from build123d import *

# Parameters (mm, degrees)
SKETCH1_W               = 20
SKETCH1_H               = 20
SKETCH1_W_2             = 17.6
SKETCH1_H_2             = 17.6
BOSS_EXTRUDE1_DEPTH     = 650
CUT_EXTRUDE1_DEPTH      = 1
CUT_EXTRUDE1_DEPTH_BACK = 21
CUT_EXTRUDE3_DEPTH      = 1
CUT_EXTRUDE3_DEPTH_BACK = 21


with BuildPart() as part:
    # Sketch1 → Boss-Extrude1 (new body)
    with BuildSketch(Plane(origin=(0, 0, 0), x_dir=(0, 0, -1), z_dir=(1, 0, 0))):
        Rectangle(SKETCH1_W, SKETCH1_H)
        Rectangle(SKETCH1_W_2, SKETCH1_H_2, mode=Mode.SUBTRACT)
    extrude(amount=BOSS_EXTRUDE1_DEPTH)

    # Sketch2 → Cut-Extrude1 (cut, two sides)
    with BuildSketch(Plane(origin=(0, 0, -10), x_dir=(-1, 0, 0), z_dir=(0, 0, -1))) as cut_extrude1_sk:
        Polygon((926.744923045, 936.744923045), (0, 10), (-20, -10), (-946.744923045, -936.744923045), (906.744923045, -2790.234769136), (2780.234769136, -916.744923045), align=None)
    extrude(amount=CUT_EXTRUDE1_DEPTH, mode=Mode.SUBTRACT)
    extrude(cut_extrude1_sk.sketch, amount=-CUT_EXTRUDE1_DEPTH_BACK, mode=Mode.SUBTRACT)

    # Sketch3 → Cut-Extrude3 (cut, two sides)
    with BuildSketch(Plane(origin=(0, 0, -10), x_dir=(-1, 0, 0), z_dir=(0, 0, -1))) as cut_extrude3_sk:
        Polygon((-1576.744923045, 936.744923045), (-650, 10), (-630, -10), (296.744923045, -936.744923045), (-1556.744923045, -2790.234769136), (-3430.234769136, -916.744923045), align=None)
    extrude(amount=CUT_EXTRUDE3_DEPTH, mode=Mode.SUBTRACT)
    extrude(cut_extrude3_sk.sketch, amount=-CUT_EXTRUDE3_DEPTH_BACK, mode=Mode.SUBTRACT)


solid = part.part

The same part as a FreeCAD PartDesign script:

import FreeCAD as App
import Part
import Sketcher

V = App.Vector
Q = App.Units.Quantity


def add_polygon(sketch, points):
    """Adds a closed chain of lines whose ends are joined by coincident constraints."""
    first, n = sketch.GeometryCount, len(points)
    for a, b in zip(points, points[1:] + points[:1]):
        sketch.addGeometry(Part.LineSegment(App.Vector(*a, 0), App.Vector(*b, 0)), False)
    for i in range(n):
        sketch.addConstraint(Sketcher.Constraint("Coincident", first + i, 2, first + (i + 1) % n, 1))

doc = App.newDocument("Part")
body = doc.addObject("PartDesign::Body", "Body")

# Sketch on YZ plane
sketch1 = body.newObject("Sketcher::SketchObject", "Sketch")
sketch1.AttachmentSupport = (doc.getObject("YZ_Plane"), [""])
sketch1.MapMode = "FlatFace"
add_polygon(sketch1, [(10, 10), (-10, 10), (-10, -10), (10, -10)])  # lines 0-3
add_polygon(sketch1, [(-9, -9), (-9, 9), (9, 9), (9, -9)])  # lines 4-7
sketch1.addConstraint(Sketcher.Constraint("Horizontal", 0))
sketch1.addConstraint(Sketcher.Constraint("Vertical", 1))
sketch1.addConstraint(Sketcher.Constraint("Horizontal", 2))
sketch1.addConstraint(Sketcher.Constraint("Vertical", 3))
sketch1.addConstraint(Sketcher.Constraint("Vertical", 4))
sketch1.addConstraint(Sketcher.Constraint("Horizontal", 5))
sketch1.addConstraint(Sketcher.Constraint("Vertical", 6))
sketch1.addConstraint(Sketcher.Constraint("Horizontal", 7))
sketch1.addConstraint(Sketcher.Constraint("Symmetric", 0, 2, 2, 2, -1, 1))
sketch1.addConstraint(Sketcher.Constraint("Symmetric", 4, 2, 6, 2, -1, 1))
sketch1.addConstraint(Sketcher.Constraint("Equal", 2, 1))
sketch1.addConstraint(Sketcher.Constraint("Equal", 7, 4))
sketch1.addConstraint(Sketcher.Constraint("DistanceX", 0, 2, 0, 1, 20.0))
sketch1.addConstraint(Sketcher.Constraint("DistanceX", 5, 1, 5, 2, 17.6))
pad1 = body.newObject("PartDesign::Pad", "Pad")
pad1.Profile = sketch1
pad1.Length = 650

# Sketch on XY plane
sketch2 = body.newObject("Sketcher::SketchObject", "Sketch001")
sketch2.AttachmentSupport = (doc.getObject("XY_Plane"), [""])
sketch2.MapMode = "FlatFace"
sketch2.AttachmentOffset = App.Placement(V(0, 0, -10), App.Rotation())
add_polygon(sketch2, [(-927, 937), (947, -937), (-907, -2790), (-2780, -917)])  # lines 0-3
sketch2.addConstraint(Sketcher.Constraint("Perpendicular", 0, 1))
sketch2.addConstraint(Sketcher.Constraint("Perpendicular", 1, 2))
sketch2.addConstraint(Sketcher.Constraint("Perpendicular", 2, 3))
sketch2.addConstraint(Sketcher.Constraint("Angle", 0, Q("-45 deg")))
sketch2.addConstraint(Sketcher.Constraint("DistanceY", 0, 2, 2, 2, 20.0))
sketch2.addConstraint(Sketcher.Constraint("Distance", 0, 2649.514749))
sketch2.addConstraint(Sketcher.Constraint("DistanceY", 1, 2, -1, 1, 2790.234769))
sketch2.addConstraint(Sketcher.Constraint("DistanceX", 2, 2, -1, 1, 2780.234769))
pocket1 = body.newObject("PartDesign::Pocket", "Pocket")
pocket1.Profile = sketch2
pocket1.Type = "ThroughAll"
pocket1.Midplane = True

# Sketch on XY plane
sketch3 = body.newObject("Sketcher::SketchObject", "Sketch002")
sketch3.AttachmentSupport = (doc.getObject("XY_Plane"), [""])
sketch3.MapMode = "FlatFace"
sketch3.AttachmentOffset = App.Placement(V(0, 0, -10), App.Rotation())
add_polygon(sketch3, [(-297, -937), (1577, 937), (3430, -917), (1557, -2790)])  # lines 0-3
sketch3.addConstraint(Sketcher.Constraint("Perpendicular", 0, 1))
sketch3.addConstraint(Sketcher.Constraint("Perpendicular", 1, 2))
sketch3.addConstraint(Sketcher.Constraint("Perpendicular", 2, 3))
sketch3.addConstraint(Sketcher.Constraint("Angle", 0, Q("45 deg")))
sketch3.addConstraint(Sketcher.Constraint("DistanceX", 2, 2, 0, 2, 20.0))
sketch3.addConstraint(Sketcher.Constraint("Distance", 0, 2649.514749))
sketch3.addConstraint(Sketcher.Constraint("DistanceX", -1, 1, 1, 2, 3430.234769))
sketch3.addConstraint(Sketcher.Constraint("DistanceY", 2, 2, -1, 1, 2790.234769))
pocket2 = body.newObject("PartDesign::Pocket", "Pocket001")
pocket2.Profile = sketch3
pocket2.Type = "ThroughAll"
pocket2.Midplane = True

doc.recompute()
